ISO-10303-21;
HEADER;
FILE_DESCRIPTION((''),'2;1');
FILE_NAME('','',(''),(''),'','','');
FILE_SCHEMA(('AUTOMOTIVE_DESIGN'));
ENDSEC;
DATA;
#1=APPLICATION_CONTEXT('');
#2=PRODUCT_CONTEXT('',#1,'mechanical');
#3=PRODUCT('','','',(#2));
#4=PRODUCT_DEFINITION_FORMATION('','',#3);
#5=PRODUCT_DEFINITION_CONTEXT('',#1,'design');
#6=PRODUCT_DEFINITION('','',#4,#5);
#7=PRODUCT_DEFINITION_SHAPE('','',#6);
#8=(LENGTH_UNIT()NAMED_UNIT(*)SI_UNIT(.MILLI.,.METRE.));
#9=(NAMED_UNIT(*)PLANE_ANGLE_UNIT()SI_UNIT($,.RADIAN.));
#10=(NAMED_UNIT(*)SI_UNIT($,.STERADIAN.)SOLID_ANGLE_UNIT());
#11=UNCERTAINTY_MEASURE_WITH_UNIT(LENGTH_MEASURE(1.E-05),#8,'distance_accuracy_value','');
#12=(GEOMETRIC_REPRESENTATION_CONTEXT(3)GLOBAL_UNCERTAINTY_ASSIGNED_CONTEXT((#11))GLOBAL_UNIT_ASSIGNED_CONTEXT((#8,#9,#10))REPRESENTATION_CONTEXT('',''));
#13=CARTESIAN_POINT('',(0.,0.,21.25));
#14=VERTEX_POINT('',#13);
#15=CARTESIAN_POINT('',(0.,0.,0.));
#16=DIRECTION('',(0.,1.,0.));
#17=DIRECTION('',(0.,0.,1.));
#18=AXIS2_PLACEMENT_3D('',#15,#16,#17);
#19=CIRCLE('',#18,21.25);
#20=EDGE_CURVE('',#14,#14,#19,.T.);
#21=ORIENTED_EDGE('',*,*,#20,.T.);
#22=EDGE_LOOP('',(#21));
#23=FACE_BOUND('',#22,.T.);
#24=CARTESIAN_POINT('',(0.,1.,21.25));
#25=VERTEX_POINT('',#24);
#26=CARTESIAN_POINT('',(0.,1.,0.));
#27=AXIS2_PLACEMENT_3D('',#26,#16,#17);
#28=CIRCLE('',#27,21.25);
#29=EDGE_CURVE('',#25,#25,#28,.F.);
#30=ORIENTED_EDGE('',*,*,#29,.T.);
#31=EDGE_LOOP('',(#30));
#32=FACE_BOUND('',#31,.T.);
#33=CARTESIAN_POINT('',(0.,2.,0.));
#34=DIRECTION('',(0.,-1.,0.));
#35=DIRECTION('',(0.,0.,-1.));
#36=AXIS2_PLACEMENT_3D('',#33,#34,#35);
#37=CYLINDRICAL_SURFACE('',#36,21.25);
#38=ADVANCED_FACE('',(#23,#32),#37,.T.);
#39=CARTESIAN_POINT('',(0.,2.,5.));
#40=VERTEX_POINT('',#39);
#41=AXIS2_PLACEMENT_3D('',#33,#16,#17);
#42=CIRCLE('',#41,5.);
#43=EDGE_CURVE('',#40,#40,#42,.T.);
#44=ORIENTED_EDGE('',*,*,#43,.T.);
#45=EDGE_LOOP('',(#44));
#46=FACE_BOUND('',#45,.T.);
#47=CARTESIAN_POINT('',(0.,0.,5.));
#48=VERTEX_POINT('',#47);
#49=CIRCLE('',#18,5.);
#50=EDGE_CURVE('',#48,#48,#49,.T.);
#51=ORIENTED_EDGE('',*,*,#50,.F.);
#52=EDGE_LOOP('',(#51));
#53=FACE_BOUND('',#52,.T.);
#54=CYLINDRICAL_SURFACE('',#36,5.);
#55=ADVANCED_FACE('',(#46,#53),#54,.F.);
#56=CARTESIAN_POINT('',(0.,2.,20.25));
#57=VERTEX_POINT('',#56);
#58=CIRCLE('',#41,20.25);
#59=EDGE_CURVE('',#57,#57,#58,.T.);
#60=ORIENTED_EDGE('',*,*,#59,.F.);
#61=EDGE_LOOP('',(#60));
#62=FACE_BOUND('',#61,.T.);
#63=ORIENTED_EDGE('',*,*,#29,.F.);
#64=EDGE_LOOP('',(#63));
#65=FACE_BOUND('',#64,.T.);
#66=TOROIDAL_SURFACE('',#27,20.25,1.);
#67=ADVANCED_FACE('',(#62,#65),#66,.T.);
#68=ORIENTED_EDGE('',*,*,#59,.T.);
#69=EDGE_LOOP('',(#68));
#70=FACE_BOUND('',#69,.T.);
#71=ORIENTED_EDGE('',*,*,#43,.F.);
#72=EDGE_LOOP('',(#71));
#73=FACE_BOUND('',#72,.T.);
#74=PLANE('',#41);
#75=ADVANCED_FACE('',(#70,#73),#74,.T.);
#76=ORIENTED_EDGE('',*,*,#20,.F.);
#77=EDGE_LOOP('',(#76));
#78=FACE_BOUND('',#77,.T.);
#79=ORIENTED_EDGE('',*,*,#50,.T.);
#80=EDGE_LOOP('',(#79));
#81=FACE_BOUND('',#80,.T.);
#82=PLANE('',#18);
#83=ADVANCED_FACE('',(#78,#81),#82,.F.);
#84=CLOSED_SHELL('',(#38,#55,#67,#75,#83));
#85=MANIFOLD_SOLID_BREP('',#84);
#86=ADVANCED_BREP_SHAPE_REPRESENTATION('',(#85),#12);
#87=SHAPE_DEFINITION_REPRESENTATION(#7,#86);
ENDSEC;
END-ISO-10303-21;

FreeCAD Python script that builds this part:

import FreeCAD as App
import Part
import Sketcher

V = App.Vector
Q = App.Units.Quantity


def edges_at(feature, points):
    """Names of the edges that pass closest to the given points."""
    edges = feature.Shape.Edges
    near = lambda p: min(range(len(edges)), key=lambda i: edges[i].distToShape(Part.Vertex(*p))[0])
    return sorted({f"Edge{near(p) + 1}" for p in points})

doc = App.newDocument("Part")
body = doc.addObject("PartDesign::Body", "Body")

sketch1 = doc.addObject("Sketcher::SketchObject", "Sketch")
body.addObject(sketch1)
sketch1.AttachmentSupport = (doc.XZ_Plane, [""])
sketch1.MapMode = "FlatFace"
sketch1.addGeometry([
    Part.Circle(V(0, 0, 0), V(0, 0, 1), 21),
    Part.Circle(V(0, 0, 0), V(0, 0, 1), 5),
], False)
sketch1.addConstraint([
    Sketcher.Constraint("Coincident", 0, 3, -1, 1),
    Sketcher.Constraint("Coincident", 1, 3, -1, 1),
    Sketcher.Constraint("Diameter", 1, Q("10 mm")),
    Sketcher.Constraint("Diameter", 0, Q("42.5 mm")),
])
pad1 = doc.addObject("PartDesign::Pad", "Pad")
body.addObject(pad1)
pad1.Profile = sketch1
pad1.Length = 2
pad1.Reversed = True
doc.recompute()

fillet = doc.addObject("PartDesign::Fillet", "Fillet")
body.addObject(fillet)
fillet.Base = (pad1, edges_at(pad1, [(0, 2, -21.25)]))
fillet.Radius = 1

doc.recompute()
